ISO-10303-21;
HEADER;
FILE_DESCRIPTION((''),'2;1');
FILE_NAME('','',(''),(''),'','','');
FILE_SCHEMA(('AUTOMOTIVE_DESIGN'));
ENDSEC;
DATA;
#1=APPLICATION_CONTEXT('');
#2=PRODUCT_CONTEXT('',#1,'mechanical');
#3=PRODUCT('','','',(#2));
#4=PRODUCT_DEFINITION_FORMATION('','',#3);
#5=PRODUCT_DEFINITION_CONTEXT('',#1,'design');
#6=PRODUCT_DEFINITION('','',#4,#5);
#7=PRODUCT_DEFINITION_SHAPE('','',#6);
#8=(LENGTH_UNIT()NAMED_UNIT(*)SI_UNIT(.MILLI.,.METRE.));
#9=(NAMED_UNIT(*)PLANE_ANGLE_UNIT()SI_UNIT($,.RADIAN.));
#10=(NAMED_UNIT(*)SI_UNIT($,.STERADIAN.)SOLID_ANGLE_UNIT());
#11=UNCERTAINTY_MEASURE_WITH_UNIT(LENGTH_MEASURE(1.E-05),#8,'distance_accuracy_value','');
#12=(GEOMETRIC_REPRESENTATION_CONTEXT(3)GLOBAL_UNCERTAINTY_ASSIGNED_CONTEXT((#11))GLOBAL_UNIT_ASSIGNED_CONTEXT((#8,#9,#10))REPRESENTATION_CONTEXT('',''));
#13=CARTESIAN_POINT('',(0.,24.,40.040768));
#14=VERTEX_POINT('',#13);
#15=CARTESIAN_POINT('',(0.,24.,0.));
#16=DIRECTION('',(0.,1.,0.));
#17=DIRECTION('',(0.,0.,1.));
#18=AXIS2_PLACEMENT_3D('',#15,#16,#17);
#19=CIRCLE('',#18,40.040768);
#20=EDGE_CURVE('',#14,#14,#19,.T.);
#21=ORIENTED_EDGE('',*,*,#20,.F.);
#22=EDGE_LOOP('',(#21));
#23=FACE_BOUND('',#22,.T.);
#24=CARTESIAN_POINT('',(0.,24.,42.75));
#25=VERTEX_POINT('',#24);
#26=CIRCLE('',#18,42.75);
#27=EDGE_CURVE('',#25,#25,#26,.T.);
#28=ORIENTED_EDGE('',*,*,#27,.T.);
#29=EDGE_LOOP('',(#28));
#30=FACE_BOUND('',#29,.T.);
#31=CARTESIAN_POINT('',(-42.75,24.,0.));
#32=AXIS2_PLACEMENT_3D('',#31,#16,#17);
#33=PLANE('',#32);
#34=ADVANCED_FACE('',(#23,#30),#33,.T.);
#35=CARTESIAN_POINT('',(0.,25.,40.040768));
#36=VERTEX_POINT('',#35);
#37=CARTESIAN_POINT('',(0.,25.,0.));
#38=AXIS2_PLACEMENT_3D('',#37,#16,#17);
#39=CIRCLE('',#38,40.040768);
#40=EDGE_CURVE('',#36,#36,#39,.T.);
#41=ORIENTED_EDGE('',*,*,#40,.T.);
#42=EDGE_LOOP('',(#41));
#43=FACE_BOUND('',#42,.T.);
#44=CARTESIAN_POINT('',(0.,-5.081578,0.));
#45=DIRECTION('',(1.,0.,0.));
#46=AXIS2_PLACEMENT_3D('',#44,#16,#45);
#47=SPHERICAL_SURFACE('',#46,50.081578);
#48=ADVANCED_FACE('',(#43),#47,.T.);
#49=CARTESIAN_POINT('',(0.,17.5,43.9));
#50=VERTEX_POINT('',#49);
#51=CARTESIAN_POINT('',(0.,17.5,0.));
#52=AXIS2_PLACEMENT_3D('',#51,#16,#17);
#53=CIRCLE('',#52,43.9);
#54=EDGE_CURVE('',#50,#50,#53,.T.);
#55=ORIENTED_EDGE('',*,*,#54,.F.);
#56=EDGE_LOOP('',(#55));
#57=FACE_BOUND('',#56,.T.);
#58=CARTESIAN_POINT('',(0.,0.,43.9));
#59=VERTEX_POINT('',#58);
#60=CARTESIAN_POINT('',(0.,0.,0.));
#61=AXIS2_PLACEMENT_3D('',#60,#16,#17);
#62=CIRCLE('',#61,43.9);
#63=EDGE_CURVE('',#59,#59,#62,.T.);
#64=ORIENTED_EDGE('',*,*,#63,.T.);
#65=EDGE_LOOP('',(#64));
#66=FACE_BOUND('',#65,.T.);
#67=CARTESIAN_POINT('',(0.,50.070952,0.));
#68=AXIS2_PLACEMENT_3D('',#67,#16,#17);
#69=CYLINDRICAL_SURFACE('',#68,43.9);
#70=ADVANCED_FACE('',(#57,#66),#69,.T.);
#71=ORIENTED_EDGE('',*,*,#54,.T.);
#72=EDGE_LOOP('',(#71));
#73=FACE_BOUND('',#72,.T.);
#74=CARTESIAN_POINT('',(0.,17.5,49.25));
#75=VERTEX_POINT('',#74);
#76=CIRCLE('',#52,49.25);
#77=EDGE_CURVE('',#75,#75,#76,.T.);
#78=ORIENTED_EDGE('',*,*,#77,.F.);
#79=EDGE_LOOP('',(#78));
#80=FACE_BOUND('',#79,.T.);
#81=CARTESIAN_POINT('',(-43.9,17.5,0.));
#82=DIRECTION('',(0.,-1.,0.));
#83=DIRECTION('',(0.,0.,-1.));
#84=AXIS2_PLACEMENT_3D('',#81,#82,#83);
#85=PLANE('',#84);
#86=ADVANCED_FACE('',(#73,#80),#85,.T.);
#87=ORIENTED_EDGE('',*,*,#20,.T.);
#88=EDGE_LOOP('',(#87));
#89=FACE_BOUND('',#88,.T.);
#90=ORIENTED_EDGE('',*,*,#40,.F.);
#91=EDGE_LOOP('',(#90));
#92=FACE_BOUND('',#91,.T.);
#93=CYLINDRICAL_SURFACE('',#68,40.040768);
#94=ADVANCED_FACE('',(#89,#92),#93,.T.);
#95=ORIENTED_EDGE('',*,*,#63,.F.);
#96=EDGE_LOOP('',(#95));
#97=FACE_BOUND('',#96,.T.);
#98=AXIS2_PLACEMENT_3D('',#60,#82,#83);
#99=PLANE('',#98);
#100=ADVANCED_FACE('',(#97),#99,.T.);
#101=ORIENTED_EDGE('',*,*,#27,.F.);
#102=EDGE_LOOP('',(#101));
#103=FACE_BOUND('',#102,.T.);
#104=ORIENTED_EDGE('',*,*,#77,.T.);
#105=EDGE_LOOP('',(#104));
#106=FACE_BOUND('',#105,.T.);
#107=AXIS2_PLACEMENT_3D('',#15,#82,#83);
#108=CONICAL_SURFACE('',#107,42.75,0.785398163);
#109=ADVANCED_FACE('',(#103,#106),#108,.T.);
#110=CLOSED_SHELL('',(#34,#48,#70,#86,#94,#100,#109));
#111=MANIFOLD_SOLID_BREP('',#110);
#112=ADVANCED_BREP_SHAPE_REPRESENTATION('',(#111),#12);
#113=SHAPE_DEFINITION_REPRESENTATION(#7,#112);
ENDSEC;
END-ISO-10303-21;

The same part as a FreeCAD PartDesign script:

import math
import FreeCAD as App
import Part
import Sketcher
Q = App.Units.Quantity

doc = App.newDocument("Part")
params = doc.addObject("Spreadsheet::Sheet", "Params")
for row, (alias, value) in enumerate([
    ("sketch1_height", "45 mm"),
    ("sketch1_height2", "1 mm"),
    ("sketch1_width", "43.9 mm"),
    ("sketch1_height3", "17.5 mm"),
    ("sketch1_width2", "5.35 mm"),
    ("revolution_angle", "360 deg"),
], start=1):
    params.set(f"A{row}", alias)
    params.set(f"B{row}", "=" + value)
    params.setAlias(f"B{row}", alias)

body = doc.addObject("PartDesign::Body", "Body")

# Sketch on XY plane
sketch1 = body.newObject("Sketcher::SketchObject", "Sketch")
sketch1.AttachmentSupport = (doc.getObject("XY_Plane"), [""])
sketch1.MapMode = "FlatFace"
sketch1.addGeometry([
    Part.LineSegment(App.Vector(-43.9, 17.5, 0), App.Vector(-43.9, 0, 0)),  # 0
    Part.LineSegment(App.Vector(-43.9, 0, 0), App.Vector(0, 0, 0)),  # 1
    Part.LineSegment(App.Vector(0, 0, 0), App.Vector(0, 45, 0)),  # 2
    Part.ArcOfCircle(Part.Circle(App.Vector(0, -5.1, 0), App.Vector(0, 0, 1), 50.1), math.radians(90), math.radians(143)),  # 3
    Part.LineSegment(App.Vector(-40, 25, 0), App.Vector(-40, 24, 0)),  # 4
    Part.LineSegment(App.Vector(-40, 24, 0), App.Vector(-42.8, 24, 0)),  # 5
    Part.LineSegment(App.Vector(-42.8, 24, 0), App.Vector(-49.2, 17.5, 0)),  # 6
    Part.LineSegment(App.Vector(-49.2, 17.5, 0), App.Vector(-43.9, 17.5, 0)),  # 7
], False)
sketch1.addConstraint([
    Sketcher.Constraint("Coincident", 0, 2, 1, 1),
    Sketcher.Constraint("Coincident", 1, 2, 2, 1),
    Sketcher.Constraint("Coincident", 2, 2, 3, 1),
    Sketcher.Constraint("Coincident", 3, 2, 4, 1),
    Sketcher.Constraint("Coincident", 4, 2, 5, 1),
    Sketcher.Constraint("Coincident", 5, 2, 6, 1),
    Sketcher.Constraint("Coincident", 6, 2, 7, 1),
    Sketcher.Constraint("Coincident", 7, 2, 0, 1),
    Sketcher.Constraint("Vertical", 0),
    Sketcher.Constraint("Horizontal", 1),
    Sketcher.Constraint("Vertical", 2),
    Sketcher.Constraint("Vertical", 4),
    Sketcher.Constraint("Horizontal", 5),
    Sketcher.Constraint("Horizontal", 7),
    Sketcher.Constraint("Coincident", 1, 2, -1, 1),
    Sketcher.Constraint("PointOnObject", 3, 3, -2),
    Sketcher.Constraint("DistanceY", 2, 1, 2, 2, Q("45 mm")),
    Sketcher.Constraint("DistanceY", 4, 2, 4, 1, Q("1 mm")),
    Sketcher.Constraint("Angle", 6, Q("-135 deg")),
    Sketcher.Constraint("DistanceX", 1, 1, 1, 2, Q("43.9 mm")),
    Sketcher.Constraint("DistanceY", 0, 2, 0, 1, Q("17.5 mm")),
    Sketcher.Constraint("DistanceY", -1, 1, 3, 2, Q("25 mm")),
    Sketcher.Constraint("DistanceX", 7, 1, 7, 2, Q("5.35 mm")),
    Sketcher.Constraint("Radius", 3, Q("50.081578 mm")),
])
sketch1.setExpression("Constraints[16]", "Params.sketch1_height")
sketch1.setExpression("Constraints[17]", "Params.sketch1_height2")
sketch1.setExpression("Constraints[19]", "Params.sketch1_width")
sketch1.setExpression("Constraints[20]", "Params.sketch1_height3")
sketch1.setExpression("Constraints[22]", "Params.sketch1_width2")
revolution = body.newObject("PartDesign::Revolution", "Revolution")
revolution.Profile = sketch1
revolution.ReferenceAxis = (sketch1, ["V_Axis"])
revolution.setExpression("Angle", "Params.revolution_angle")

doc.recompute()
